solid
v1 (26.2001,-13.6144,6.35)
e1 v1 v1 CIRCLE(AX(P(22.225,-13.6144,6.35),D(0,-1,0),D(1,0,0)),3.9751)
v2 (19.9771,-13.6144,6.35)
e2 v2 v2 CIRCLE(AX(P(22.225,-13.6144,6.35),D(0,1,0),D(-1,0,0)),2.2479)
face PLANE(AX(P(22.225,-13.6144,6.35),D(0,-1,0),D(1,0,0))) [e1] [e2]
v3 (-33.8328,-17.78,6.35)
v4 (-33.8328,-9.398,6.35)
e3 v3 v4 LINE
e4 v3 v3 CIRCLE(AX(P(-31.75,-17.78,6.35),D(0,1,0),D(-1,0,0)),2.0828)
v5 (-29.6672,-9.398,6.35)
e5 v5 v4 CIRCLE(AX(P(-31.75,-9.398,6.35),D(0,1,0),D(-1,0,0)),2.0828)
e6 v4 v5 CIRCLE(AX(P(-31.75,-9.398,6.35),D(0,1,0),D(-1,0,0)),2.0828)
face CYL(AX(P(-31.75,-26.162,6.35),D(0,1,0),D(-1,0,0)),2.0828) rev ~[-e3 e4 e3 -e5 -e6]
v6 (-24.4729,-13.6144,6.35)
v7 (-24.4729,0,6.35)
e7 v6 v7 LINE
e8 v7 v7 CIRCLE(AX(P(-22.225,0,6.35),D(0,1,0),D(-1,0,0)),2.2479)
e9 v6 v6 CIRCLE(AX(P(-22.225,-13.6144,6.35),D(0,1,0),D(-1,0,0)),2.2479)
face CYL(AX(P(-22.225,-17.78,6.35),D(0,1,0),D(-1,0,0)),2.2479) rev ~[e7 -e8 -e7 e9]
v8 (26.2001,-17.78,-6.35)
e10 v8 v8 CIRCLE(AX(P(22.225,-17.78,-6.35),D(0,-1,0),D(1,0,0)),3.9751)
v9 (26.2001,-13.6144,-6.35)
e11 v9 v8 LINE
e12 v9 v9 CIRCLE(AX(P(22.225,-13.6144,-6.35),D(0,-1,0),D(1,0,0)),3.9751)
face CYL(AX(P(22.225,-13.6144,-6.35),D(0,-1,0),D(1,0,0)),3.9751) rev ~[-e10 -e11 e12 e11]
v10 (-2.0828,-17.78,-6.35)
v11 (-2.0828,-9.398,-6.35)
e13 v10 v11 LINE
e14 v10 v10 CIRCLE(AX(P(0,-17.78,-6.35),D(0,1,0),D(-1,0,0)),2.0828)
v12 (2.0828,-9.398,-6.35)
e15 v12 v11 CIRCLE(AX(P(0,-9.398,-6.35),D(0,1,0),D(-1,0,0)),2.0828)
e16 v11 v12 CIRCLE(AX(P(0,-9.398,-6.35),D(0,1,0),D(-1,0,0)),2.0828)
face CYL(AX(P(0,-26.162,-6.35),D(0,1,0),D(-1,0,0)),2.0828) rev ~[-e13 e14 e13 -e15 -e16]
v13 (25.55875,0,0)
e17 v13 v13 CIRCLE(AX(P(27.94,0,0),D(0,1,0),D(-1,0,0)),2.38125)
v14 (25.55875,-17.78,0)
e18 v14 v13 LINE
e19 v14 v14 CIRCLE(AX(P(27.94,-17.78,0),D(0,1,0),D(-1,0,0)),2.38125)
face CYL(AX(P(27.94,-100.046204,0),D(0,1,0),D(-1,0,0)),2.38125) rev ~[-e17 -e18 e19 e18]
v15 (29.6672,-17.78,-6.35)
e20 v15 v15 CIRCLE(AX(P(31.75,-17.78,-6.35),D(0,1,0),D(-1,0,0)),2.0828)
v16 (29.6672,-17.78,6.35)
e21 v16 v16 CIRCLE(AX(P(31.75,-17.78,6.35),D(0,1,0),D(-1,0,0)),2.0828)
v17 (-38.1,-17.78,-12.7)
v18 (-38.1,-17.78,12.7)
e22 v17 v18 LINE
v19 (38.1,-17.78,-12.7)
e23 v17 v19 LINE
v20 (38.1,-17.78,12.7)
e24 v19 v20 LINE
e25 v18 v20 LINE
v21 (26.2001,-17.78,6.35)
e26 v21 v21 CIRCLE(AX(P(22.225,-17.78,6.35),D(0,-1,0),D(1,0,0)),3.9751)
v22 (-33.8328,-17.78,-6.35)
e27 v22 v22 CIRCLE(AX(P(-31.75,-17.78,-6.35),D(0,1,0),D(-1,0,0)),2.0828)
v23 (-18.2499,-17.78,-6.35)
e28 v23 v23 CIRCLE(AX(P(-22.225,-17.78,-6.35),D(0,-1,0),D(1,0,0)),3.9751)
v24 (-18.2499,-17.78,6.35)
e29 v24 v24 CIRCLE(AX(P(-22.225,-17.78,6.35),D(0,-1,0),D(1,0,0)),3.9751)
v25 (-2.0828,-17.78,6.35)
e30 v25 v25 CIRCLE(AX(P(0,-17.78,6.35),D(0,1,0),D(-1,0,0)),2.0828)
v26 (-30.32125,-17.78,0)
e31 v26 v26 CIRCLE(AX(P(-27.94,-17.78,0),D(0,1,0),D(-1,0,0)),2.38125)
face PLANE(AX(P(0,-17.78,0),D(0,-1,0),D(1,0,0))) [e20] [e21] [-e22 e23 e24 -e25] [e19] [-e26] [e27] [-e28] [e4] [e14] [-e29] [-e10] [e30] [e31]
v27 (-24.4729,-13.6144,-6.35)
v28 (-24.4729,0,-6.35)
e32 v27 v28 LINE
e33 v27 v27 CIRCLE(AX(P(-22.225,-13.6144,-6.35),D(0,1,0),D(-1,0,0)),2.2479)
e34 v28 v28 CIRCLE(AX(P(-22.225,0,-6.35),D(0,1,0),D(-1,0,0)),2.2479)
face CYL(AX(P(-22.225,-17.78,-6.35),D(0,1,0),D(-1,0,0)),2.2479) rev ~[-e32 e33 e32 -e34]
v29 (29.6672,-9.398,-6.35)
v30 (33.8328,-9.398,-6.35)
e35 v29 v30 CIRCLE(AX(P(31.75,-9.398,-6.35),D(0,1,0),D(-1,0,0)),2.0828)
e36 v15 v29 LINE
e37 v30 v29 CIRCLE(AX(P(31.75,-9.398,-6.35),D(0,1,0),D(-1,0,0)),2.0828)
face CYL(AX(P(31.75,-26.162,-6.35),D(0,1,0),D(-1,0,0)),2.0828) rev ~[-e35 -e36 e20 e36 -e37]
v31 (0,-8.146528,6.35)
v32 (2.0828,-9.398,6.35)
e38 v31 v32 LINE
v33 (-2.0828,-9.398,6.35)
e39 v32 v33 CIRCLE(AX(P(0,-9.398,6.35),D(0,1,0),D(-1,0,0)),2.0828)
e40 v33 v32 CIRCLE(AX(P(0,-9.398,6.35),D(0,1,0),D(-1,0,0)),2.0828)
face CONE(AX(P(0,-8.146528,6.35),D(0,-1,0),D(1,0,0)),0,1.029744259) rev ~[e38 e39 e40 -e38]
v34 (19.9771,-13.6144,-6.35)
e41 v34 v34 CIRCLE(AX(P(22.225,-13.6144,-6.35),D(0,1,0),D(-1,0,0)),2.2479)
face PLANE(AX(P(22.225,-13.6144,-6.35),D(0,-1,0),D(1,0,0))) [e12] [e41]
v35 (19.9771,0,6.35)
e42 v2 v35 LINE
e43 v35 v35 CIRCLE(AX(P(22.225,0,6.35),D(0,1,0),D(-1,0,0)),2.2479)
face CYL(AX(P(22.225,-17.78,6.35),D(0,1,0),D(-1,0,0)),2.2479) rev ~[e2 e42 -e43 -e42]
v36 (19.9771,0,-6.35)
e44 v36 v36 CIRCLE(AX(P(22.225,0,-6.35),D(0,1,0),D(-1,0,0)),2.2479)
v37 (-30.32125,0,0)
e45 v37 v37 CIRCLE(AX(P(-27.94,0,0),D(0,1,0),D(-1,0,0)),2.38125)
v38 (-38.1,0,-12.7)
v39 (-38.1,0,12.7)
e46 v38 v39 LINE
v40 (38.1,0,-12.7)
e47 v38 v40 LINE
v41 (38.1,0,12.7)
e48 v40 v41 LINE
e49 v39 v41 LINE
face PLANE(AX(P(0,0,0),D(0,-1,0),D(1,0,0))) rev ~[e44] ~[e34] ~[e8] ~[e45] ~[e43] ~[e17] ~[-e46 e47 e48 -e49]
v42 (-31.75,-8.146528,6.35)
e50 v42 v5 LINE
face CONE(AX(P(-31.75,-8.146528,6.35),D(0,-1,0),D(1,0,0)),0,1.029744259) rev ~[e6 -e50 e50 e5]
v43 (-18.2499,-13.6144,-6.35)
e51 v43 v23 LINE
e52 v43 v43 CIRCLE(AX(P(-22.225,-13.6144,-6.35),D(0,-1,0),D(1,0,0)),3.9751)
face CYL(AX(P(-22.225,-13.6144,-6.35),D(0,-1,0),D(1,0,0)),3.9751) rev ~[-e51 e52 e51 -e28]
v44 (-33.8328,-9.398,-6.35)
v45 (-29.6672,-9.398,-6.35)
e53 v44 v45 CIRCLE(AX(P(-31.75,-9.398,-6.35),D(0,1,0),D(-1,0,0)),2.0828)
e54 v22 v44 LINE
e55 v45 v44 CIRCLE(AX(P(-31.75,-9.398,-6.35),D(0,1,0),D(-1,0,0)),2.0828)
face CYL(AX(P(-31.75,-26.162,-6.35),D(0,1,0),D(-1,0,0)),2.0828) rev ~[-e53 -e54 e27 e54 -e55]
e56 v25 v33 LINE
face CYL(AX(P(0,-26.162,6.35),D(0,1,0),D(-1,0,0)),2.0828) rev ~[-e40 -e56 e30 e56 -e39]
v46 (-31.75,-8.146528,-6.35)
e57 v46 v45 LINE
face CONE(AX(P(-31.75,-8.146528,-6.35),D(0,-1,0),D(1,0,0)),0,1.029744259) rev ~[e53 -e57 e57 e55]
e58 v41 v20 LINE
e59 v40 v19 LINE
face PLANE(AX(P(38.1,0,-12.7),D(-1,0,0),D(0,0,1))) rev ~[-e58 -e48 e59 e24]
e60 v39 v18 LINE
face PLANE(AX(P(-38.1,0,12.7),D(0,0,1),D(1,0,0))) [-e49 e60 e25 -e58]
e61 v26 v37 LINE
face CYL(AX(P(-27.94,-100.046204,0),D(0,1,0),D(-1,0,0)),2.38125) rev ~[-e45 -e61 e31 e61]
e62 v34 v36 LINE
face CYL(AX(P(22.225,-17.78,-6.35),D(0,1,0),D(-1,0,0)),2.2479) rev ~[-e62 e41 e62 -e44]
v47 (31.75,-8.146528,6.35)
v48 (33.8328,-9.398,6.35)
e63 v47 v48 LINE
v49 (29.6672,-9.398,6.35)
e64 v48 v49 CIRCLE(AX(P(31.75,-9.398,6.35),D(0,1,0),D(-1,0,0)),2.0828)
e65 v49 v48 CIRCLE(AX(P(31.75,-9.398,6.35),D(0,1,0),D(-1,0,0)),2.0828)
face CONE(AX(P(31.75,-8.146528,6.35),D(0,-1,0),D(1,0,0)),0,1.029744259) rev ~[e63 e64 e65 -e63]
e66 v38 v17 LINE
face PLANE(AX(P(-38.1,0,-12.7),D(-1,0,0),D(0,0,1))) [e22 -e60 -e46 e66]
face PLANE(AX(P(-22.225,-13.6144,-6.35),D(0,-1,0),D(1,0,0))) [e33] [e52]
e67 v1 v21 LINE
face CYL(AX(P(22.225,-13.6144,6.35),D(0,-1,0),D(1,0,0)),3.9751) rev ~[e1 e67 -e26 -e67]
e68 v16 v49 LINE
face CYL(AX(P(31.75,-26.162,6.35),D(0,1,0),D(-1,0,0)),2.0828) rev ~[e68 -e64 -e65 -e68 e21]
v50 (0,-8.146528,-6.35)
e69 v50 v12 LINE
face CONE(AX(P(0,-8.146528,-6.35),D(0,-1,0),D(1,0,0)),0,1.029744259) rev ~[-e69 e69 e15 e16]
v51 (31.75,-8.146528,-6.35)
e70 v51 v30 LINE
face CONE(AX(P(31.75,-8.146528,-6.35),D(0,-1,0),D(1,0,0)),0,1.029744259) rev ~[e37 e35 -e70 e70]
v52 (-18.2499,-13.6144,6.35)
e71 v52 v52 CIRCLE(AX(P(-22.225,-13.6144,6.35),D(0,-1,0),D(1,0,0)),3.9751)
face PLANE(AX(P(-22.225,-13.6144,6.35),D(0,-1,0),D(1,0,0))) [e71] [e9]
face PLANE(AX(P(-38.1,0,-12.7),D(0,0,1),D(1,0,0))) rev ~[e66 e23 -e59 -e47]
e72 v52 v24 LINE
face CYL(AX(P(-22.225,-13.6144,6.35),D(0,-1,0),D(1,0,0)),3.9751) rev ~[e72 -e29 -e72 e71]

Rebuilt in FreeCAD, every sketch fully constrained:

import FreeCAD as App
import Part
import Sketcher
Q = App.Units.Quantity

doc = App.newDocument("Part")
params = doc.addObject("Spreadsheet::Sheet", "Params")
for row, (alias, value) in enumerate([
    ("sketch1_width", "3 in"),
    ("sketch1_height", "1 in"),
    ("pad1_length", "0.7 in"),
    ("sketch2_diameter", "0.164 in"),
    ("hole_diameter", "0.164 in"),
    ("hole_depth", "0.33 in"),
    ("sketch3_diameter", "0.177 in"),
    ("hole2_diameter", "0.177 in"),
    ("hole2_cbore_diameter", "0.313 in"),
    ("hole2_cbore_depth", "0.164 in"),
    ("sketch4_diameter", "0.1875 in"),
    ("hole3_diameter", "0.1875 in"),
], start=1):
    params.set(f"A{row}", alias)
    params.set(f"B{row}", "=" + value)
    params.setAlias(f"B{row}", alias)

body = doc.addObject("PartDesign::Body", "Body")

sketch1 = doc.addObject("Sketcher::SketchObject", "Sketch")
body.addObject(sketch1)
sketch1.AttachmentSupport = (doc.XZ_Plane, [""])
sketch1.MapMode = "FlatFace"
sketch1.addGeometry(Part.LineSegment(App.Vector(-38, 13, 0), App.Vector(-38, -13, 0)), False)
sketch1.addGeometry(Part.LineSegment(App.Vector(-38, -13, 0), App.Vector(38, -13, 0)), False)
sketch1.addGeometry(Part.LineSegment(App.Vector(38, -13, 0), App.Vector(38, 13, 0)), False)
sketch1.addGeometry(Part.LineSegment(App.Vector(38, 13, 0), App.Vector(-38, 13, 0)), False)
sketch1.addConstraint(Sketcher.Constraint("Coincident", 0, 2, 1, 1))
sketch1.addConstraint(Sketcher.Constraint("Coincident", 1, 2, 2, 1))
sketch1.addConstraint(Sketcher.Constraint("Coincident", 2, 2, 3, 1))
sketch1.addConstraint(Sketcher.Constraint("Coincident", 3, 2, 0, 1))
sketch1.addConstraint(Sketcher.Constraint("Vertical", 0))
sketch1.addConstraint(Sketcher.Constraint("Horizontal", 1))
sketch1.addConstraint(Sketcher.Constraint("Vertical", 2))
sketch1.addConstraint(Sketcher.Constraint("Horizontal", 3))
sketch1.addConstraint(Sketcher.Constraint("Symmetric", 0, 2, 2, 2, -1, 1))
sketch1.addConstraint(Sketcher.Constraint("DistanceX", 1, 1, 1, 2, Q("3 in")))
sketch1.addConstraint(Sketcher.Constraint("DistanceY", 0, 2, 0, 1, Q("1 in")))
sketch1.setExpression("Constraints[9]", "Params.sketch1_width")
sketch1.setExpression("Constraints[10]", "Params.sketch1_height")
pad1 = doc.addObject("PartDesign::Pad", "Pad")
body.addObject(pad1)
pad1.Profile = sketch1
pad1.setExpression("Length", "Params.pad1_length")

sketch2 = doc.addObject("Sketcher::SketchObject", "Sketch001")
body.addObject(sketch2)
sketch2.AttachmentSupport = (doc.XZ_Plane, [""])
sketch2.MapMode = "FlatFace"
sketch2.AttachmentOffset = App.Placement(App.Vector(0, 0, 0.7 * 25.4), App.Rotation())
sketch2.addGeometry(Part.Circle(App.Vector(-31.8, 6.3, 0), App.Vector(0, 0, 1), 2.1), False)
sketch2.addGeometry(Part.Circle(App.Vector(0, 6.3, 0), App.Vector(0, 0, 1), 2.1), False)
sketch2.addGeometry(Part.Circle(App.Vector(31.8, 6.3, 0), App.Vector(0, 0, 1), 2.1), False)
sketch2.addGeometry(Part.Circle(App.Vector(31.8, -6.3, 0), App.Vector(0, 0, 1), 2.1), False)
sketch2.addGeometry(Part.Circle(App.Vector(0, -6.3, 0), App.Vector(0, 0, 1), 2.1), False)
sketch2.addGeometry(Part.Circle(App.Vector(-31.8, -6.3, 0), App.Vector(0, 0, 1), 2.1), False)
sketch2.addConstraint(Sketcher.Constraint("Equal", 0, 1))
sketch2.addConstraint(Sketcher.Constraint("Equal", 1, 2))
sketch2.addConstraint(Sketcher.Constraint("Equal", 2, 3))
sketch2.addConstraint(Sketcher.Constraint("Equal", 3, 4))
sketch2.addConstraint(Sketcher.Constraint("Equal", 4, 5))
sketch2.addConstraint(Sketcher.Constraint("Symmetric", 0, 3, 3, 3, -1, 1))
sketch2.addConstraint(Sketcher.Constraint("Symmetric", 1, 3, 4, 3, -1, 1))
sketch2.addConstraint(Sketcher.Constraint("Symmetric", 2, 3, 5, 3, -1, 1))
sketch2.addConstraint(Sketcher.Constraint("Symmetric", 0, 3, 2, 3, -2))
sketch2.addConstraint(Sketcher.Constraint("PointOnObject", 1, 3, -2))
sketch2.addConstraint(Sketcher.Constraint("Horizontal", 0, 3, 1, 3))
sketch2.addConstraint(Sketcher.Constraint("Diameter", 0, Q("0.164 in")))
sketch2.addConstraint(Sketcher.Constraint("DistanceX", 0, 3, 2, 3, Q("2.5 in")))
sketch2.addConstraint(Sketcher.Constraint("DistanceY", 3, 3, 2, 3, Q("0.5 in")))
sketch2.setExpression("Constraints[11]", "Params.sketch2_diameter")
doc.recompute()
hole = doc.addObject("PartDesign::Hole", "Hole")
body.addObject(hole)
hole.Profile = sketch2
hole.ThreadType = "None"
hole.setExpression("Diameter", "Params.hole_diameter")
hole.DepthType = "Dimension"
hole.setExpression("Depth", "Params.hole_depth")
hole.DrillPoint = "Angled"
hole.DrillPointAngle = 118

sketch3 = doc.addObject("Sketcher::SketchObject", "Sketch002")
body.addObject(sketch3)
sketch3.AttachmentSupport = (doc.XZ_Plane, [""])
sketch3.MapMode = "FlatFace"
sketch3.AttachmentOffset = App.Placement(App.Vector(0, 0, 0.7 * 25.4), App.Rotation())
sketch3.addGeometry(Part.Circle(App.Vector(-22.2, 6.3, 0), App.Vector(0, 0, 1), 2.2), False)
sketch3.addGeometry(Part.Circle(App.Vector(22.2, 6.3, 0), App.Vector(0, 0, 1), 2.2), False)
sketch3.addGeometry(Part.Circle(App.Vector(22.2, -6.3, 0), App.Vector(0, 0, 1), 2.2), False)
sketch3.addGeometry(Part.Circle(App.Vector(-22.2, -6.3, 0), App.Vector(0, 0, 1), 2.2), False)
sketch3.addConstraint(Sketcher.Constraint("Equal", 0, 1))
sketch3.addConstraint(Sketcher.Constraint("Equal", 1, 2))
sketch3.addConstraint(Sketcher.Constraint("Equal", 2, 3))
sketch3.addConstraint(Sketcher.Constraint("Symmetric", 0, 3, 2, 3, -1, 1))
sketch3.addConstraint(Sketcher.Constraint("Symmetric", 1, 3, 3, 3, -1, 1))
sketch3.addConstraint(Sketcher.Constraint("Symmetric", 0, 3, 1, 3, -2))
sketch3.addConstraint(Sketcher.Constraint("Diameter", 0, Q("0.177 in")))
sketch3.addConstraint(Sketcher.Constraint("DistanceY", 2, 3, 1, 3, Q("0.5 in")))
sketch3.addConstraint(Sketcher.Constraint("DistanceX", 0, 3, 1, 3, Q("1.75 in")))
sketch3.setExpression("Constraints[6]", "Params.sketch3_diameter")
doc.recompute()
hole2 = doc.addObject("PartDesign::Hole", "Hole001")
body.addObject(hole2)
hole2.Profile = sketch3
hole2.ThreadType = "None"
hole2.setExpression("Diameter", "Params.hole2_diameter")
hole2.DepthType = "ThroughAll"
hole2.HoleCutType = "Counterbore"
hole2.setExpression("HoleCutDiameter", "Params.hole2_cbore_diameter")
hole2.setExpression("HoleCutDepth", "Params.hole2_cbore_depth")

sketch4 = doc.addObject("Sketcher::SketchObject", "Sketch003")
body.addObject(sketch4)
sketch4.AttachmentSupport = (doc.XZ_Plane, [""])
sketch4.MapMode = "FlatFace"
sketch4.AttachmentOffset = App.Placement(App.Vector(0, 0, 0.7 * 25.4), App.Rotation())
sketch4.addGeometry(Part.Circle(App.Vector(-27.9, 0, 0), App.Vector(0, 0, 1), 2.4), False)
sketch4.addGeometry(Part.Circle(App.Vector(27.9, 0, 0), App.Vector(0, 0, 1), 2.4), False)
sketch4.addConstraint(Sketcher.Constraint("Equal", 0, 1))
sketch4.addConstraint(Sketcher.Constraint("Symmetric", 0, 3, 1, 3, -1, 1))
sketch4.addConstraint(Sketcher.Constraint("PointOnObject", 0, 3, -1))
sketch4.addConstraint(Sketcher.Constraint("Diameter", 0, Q("0.1875 in")))
sketch4.addConstraint(Sketcher.Constraint("DistanceX", 0, 3, -1, 1, Q("1.1 in")))
sketch4.setExpression("Constraints[3]", "Params.sketch4_diameter")
doc.recompute()
hole3 = doc.addObject("PartDesign::Hole", "Hole002")
body.addObject(hole3)
hole3.Profile = sketch4
hole3.ThreadType = "None"
hole3.setExpression("Diameter", "Params.hole3_diameter")
hole3.DepthType = "ThroughAll"

doc.recompute()
